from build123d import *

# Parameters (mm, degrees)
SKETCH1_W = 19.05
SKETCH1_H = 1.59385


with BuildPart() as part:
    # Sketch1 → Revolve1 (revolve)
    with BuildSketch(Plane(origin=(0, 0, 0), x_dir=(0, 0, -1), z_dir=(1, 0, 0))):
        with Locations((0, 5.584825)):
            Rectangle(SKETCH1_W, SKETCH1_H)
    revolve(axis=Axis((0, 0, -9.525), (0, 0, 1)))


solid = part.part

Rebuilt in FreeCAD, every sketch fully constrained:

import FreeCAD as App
import Part
import Sketcher
from FreeCAD import Vector
Q = App.Units.Quantity


def add_polygon(sketch, points):
    """Adds a closed chain of lines whose ends are joined by coincident constraints."""
    first, n = sketch.GeometryCount, len(points)
    for a, b in zip(points, points[1:] + points[:1]):
        sketch.addGeometry(Part.LineSegment(App.Vector(*a, 0), App.Vector(*b, 0)), False)
    for i in range(n):
        sketch.addConstraint(Sketcher.Constraint("Coincident", first + i, 2, first + (i + 1) % n, 1))

doc = App.newDocument("Part")
body = doc.addObject("PartDesign::Body", "Body")

sketch1 = body.newObject("Sketcher::SketchObject", "Sketch")
sketch1.AttachmentSupport = (doc.getObject("YZ_Plane"), [""])
sketch1.MapMode = "FlatFace"
add_polygon(sketch1, [(6.4, 9.5), (4.8, 9.5), (4.8, -9.5), (6.4, -9.5)])
sketch1.addConstraint(Sketcher.Constraint("Horizontal", 0))
sketch1.addConstraint(Sketcher.Constraint("Vertical", 1))
sketch1.addConstraint(Sketcher.Constraint("Horizontal", 2))
sketch1.addConstraint(Sketcher.Constraint("Vertical", 3))
sketch1.addConstraint(Sketcher.Constraint("DistanceY", 1, 2, 1, 1, Q("0.75 in")))
sketch1.addConstraint(Sketcher.Constraint("DistanceY", -1, 1, 0, 2, Q("0.375 in")))
sketch1.addConstraint(Sketcher.Constraint("DistanceX", -1, 1, 0, 2, Q("0.1885 in")))
sketch1.addConstraint(Sketcher.Constraint("DistanceX", 0, 2, 0, 1, Q("1.59385 mm")))
revolution = body.newObject("PartDesign::Revolution", "Revolution")
revolution.Profile = sketch1
revolution.ReferenceAxis = (sketch1, ["V_Axis"])
revolution.Angle = 360

doc.recompute()
